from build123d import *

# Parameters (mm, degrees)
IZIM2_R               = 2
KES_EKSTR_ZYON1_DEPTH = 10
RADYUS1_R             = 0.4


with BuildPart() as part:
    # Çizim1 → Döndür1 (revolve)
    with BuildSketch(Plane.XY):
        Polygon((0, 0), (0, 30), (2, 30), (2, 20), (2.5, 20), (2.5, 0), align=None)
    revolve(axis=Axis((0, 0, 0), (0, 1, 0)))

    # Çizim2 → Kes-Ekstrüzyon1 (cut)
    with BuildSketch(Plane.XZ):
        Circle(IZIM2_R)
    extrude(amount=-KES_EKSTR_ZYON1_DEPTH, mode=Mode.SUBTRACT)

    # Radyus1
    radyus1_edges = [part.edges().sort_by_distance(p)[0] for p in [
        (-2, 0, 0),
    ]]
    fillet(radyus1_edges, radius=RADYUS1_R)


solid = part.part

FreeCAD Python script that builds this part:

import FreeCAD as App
import Part
import Sketcher

V = App.Vector
Q = App.Units.Quantity


def edges_at(feature, points):
    """Names of the edges that pass closest to the given points."""
    edges = feature.Shape.Edges
    near = lambda p: min(range(len(edges)), key=lambda i: edges[i].distToShape(Part.Vertex(*p))[0])
    return sorted({f"Edge{near(p) + 1}" for p in points})


def add_polygon(sketch, points):
    """Adds a closed chain of lines whose ends are joined by coincident constraints."""
    first, n = sketch.GeometryCount, len(points)
    for a, b in zip(points, points[1:] + points[:1]):
        sketch.addGeometry(Part.LineSegment(App.Vector(*a, 0), App.Vector(*b, 0)), False)
    for i in range(n):
        sketch.addConstraint(Sketcher.Constraint("Coincident", first + i, 2, first + (i + 1) % n, 1))

doc = App.newDocument("Part")
params = doc.addObject("Spreadsheet::Sheet", "Params")
for row, (alias, value) in enumerate([
    ("sketch1_width", "2 mm"),
    ("sketch1_height", "30 mm"),
    ("sketch1_height2", "20 mm"),
    ("sketch1_width2", "2.5 mm"),
    ("revolution_angle", "360 deg"),
    ("sketch2_diameter", "4 mm"),
    ("pocket1_length", "10 mm"),
    ("fillet_radius", "0.4 mm"),
], start=1):
    params.set(f"A{row}", alias)
    params.set(f"B{row}", "=" + value)
    params.setAlias(f"B{row}", alias)

body = doc.addObject("PartDesign::Body", "Body")

# Sketch on XY plane
sketch1 = doc.addObject("Sketcher::SketchObject", "Sketch")
body.addObject(sketch1)
sketch1.AttachmentSupport = (doc.XY_Plane, [""])
sketch1.MapMode = "FlatFace"
add_polygon(sketch1, [(0, 30), (0, 0), (2.5, 0), (2.5, 20), (2, 20), (2, 30)])  # lines 0-5
sketch1.addConstraint(Sketcher.Constraint("Vertical", 0))
sketch1.addConstraint(Sketcher.Constraint("Horizontal", 1))
sketch1.addConstraint(Sketcher.Constraint("Vertical", 2))
sketch1.addConstraint(Sketcher.Constraint("Horizontal", 3))
sketch1.addConstraint(Sketcher.Constraint("Vertical", 4))
sketch1.addConstraint(Sketcher.Constraint("Horizontal", 5))
sketch1.addConstraint(Sketcher.Constraint("Coincident", 0, 2, -1, 1))
sketch1.addConstraint(Sketcher.Constraint("DistanceX", 5, 2, 5, 1, Q("2 mm")))
sketch1.addConstraint(Sketcher.Constraint("DistanceY", 0, 2, 0, 1, Q("30 mm")))
sketch1.addConstraint(Sketcher.Constraint("DistanceY", 2, 1, 2, 2, Q("20 mm")))
sketch1.addConstraint(Sketcher.Constraint("DistanceX", 1, 1, 1, 2, Q("2.5 mm")))
sketch1.setExpression("Constraints[13]", "Params.sketch1_width")
sketch1.setExpression("Constraints[14]", "Params.sketch1_height")
sketch1.setExpression("Constraints[15]", "Params.sketch1_height2")
sketch1.setExpression("Constraints[16]", "Params.sketch1_width2")
revolution = doc.addObject("PartDesign::Revolution", "Revolution")
body.addObject(revolution)
revolution.Profile = sketch1
revolution.ReferenceAxis = (sketch1, ["V_Axis"])
revolution.setExpression("Angle", "Params.revolution_angle")

# Sketch on XZ plane
sketch2 = doc.addObject("Sketcher::SketchObject", "Sketch001")
body.addObject(sketch2)
sketch2.AttachmentSupport = (doc.XZ_Plane, [""])
sketch2.MapMode = "FlatFace"
sketch2.addGeometry(Part.Circle(V(0, 0, 0), V(0, 0, 1), 2), False)
sketch2.addConstraint(Sketcher.Constraint("Coincident", 0, 3, -1, 1))
sketch2.addConstraint(Sketcher.Constraint("Diameter", 0, Q("4 mm")))
sketch2.setExpression("Constraints[1]", "Params.sketch2_diameter")
pocket1 = doc.addObject("PartDesign::Pocket", "Pocket")
body.addObject(pocket1)
pocket1.Profile = sketch2
pocket1.setExpression("Length", "Params.pocket1_length")
doc.recompute()

fillet = doc.addObject("PartDesign::Fillet", "Fillet")
body.addObject(fillet)
fillet.Base = (pocket1, edges_at(pocket1, [(-2, 0, 0)]))
fillet.setExpression("Radius", "Params.fillet_radius")

doc.recompute()
